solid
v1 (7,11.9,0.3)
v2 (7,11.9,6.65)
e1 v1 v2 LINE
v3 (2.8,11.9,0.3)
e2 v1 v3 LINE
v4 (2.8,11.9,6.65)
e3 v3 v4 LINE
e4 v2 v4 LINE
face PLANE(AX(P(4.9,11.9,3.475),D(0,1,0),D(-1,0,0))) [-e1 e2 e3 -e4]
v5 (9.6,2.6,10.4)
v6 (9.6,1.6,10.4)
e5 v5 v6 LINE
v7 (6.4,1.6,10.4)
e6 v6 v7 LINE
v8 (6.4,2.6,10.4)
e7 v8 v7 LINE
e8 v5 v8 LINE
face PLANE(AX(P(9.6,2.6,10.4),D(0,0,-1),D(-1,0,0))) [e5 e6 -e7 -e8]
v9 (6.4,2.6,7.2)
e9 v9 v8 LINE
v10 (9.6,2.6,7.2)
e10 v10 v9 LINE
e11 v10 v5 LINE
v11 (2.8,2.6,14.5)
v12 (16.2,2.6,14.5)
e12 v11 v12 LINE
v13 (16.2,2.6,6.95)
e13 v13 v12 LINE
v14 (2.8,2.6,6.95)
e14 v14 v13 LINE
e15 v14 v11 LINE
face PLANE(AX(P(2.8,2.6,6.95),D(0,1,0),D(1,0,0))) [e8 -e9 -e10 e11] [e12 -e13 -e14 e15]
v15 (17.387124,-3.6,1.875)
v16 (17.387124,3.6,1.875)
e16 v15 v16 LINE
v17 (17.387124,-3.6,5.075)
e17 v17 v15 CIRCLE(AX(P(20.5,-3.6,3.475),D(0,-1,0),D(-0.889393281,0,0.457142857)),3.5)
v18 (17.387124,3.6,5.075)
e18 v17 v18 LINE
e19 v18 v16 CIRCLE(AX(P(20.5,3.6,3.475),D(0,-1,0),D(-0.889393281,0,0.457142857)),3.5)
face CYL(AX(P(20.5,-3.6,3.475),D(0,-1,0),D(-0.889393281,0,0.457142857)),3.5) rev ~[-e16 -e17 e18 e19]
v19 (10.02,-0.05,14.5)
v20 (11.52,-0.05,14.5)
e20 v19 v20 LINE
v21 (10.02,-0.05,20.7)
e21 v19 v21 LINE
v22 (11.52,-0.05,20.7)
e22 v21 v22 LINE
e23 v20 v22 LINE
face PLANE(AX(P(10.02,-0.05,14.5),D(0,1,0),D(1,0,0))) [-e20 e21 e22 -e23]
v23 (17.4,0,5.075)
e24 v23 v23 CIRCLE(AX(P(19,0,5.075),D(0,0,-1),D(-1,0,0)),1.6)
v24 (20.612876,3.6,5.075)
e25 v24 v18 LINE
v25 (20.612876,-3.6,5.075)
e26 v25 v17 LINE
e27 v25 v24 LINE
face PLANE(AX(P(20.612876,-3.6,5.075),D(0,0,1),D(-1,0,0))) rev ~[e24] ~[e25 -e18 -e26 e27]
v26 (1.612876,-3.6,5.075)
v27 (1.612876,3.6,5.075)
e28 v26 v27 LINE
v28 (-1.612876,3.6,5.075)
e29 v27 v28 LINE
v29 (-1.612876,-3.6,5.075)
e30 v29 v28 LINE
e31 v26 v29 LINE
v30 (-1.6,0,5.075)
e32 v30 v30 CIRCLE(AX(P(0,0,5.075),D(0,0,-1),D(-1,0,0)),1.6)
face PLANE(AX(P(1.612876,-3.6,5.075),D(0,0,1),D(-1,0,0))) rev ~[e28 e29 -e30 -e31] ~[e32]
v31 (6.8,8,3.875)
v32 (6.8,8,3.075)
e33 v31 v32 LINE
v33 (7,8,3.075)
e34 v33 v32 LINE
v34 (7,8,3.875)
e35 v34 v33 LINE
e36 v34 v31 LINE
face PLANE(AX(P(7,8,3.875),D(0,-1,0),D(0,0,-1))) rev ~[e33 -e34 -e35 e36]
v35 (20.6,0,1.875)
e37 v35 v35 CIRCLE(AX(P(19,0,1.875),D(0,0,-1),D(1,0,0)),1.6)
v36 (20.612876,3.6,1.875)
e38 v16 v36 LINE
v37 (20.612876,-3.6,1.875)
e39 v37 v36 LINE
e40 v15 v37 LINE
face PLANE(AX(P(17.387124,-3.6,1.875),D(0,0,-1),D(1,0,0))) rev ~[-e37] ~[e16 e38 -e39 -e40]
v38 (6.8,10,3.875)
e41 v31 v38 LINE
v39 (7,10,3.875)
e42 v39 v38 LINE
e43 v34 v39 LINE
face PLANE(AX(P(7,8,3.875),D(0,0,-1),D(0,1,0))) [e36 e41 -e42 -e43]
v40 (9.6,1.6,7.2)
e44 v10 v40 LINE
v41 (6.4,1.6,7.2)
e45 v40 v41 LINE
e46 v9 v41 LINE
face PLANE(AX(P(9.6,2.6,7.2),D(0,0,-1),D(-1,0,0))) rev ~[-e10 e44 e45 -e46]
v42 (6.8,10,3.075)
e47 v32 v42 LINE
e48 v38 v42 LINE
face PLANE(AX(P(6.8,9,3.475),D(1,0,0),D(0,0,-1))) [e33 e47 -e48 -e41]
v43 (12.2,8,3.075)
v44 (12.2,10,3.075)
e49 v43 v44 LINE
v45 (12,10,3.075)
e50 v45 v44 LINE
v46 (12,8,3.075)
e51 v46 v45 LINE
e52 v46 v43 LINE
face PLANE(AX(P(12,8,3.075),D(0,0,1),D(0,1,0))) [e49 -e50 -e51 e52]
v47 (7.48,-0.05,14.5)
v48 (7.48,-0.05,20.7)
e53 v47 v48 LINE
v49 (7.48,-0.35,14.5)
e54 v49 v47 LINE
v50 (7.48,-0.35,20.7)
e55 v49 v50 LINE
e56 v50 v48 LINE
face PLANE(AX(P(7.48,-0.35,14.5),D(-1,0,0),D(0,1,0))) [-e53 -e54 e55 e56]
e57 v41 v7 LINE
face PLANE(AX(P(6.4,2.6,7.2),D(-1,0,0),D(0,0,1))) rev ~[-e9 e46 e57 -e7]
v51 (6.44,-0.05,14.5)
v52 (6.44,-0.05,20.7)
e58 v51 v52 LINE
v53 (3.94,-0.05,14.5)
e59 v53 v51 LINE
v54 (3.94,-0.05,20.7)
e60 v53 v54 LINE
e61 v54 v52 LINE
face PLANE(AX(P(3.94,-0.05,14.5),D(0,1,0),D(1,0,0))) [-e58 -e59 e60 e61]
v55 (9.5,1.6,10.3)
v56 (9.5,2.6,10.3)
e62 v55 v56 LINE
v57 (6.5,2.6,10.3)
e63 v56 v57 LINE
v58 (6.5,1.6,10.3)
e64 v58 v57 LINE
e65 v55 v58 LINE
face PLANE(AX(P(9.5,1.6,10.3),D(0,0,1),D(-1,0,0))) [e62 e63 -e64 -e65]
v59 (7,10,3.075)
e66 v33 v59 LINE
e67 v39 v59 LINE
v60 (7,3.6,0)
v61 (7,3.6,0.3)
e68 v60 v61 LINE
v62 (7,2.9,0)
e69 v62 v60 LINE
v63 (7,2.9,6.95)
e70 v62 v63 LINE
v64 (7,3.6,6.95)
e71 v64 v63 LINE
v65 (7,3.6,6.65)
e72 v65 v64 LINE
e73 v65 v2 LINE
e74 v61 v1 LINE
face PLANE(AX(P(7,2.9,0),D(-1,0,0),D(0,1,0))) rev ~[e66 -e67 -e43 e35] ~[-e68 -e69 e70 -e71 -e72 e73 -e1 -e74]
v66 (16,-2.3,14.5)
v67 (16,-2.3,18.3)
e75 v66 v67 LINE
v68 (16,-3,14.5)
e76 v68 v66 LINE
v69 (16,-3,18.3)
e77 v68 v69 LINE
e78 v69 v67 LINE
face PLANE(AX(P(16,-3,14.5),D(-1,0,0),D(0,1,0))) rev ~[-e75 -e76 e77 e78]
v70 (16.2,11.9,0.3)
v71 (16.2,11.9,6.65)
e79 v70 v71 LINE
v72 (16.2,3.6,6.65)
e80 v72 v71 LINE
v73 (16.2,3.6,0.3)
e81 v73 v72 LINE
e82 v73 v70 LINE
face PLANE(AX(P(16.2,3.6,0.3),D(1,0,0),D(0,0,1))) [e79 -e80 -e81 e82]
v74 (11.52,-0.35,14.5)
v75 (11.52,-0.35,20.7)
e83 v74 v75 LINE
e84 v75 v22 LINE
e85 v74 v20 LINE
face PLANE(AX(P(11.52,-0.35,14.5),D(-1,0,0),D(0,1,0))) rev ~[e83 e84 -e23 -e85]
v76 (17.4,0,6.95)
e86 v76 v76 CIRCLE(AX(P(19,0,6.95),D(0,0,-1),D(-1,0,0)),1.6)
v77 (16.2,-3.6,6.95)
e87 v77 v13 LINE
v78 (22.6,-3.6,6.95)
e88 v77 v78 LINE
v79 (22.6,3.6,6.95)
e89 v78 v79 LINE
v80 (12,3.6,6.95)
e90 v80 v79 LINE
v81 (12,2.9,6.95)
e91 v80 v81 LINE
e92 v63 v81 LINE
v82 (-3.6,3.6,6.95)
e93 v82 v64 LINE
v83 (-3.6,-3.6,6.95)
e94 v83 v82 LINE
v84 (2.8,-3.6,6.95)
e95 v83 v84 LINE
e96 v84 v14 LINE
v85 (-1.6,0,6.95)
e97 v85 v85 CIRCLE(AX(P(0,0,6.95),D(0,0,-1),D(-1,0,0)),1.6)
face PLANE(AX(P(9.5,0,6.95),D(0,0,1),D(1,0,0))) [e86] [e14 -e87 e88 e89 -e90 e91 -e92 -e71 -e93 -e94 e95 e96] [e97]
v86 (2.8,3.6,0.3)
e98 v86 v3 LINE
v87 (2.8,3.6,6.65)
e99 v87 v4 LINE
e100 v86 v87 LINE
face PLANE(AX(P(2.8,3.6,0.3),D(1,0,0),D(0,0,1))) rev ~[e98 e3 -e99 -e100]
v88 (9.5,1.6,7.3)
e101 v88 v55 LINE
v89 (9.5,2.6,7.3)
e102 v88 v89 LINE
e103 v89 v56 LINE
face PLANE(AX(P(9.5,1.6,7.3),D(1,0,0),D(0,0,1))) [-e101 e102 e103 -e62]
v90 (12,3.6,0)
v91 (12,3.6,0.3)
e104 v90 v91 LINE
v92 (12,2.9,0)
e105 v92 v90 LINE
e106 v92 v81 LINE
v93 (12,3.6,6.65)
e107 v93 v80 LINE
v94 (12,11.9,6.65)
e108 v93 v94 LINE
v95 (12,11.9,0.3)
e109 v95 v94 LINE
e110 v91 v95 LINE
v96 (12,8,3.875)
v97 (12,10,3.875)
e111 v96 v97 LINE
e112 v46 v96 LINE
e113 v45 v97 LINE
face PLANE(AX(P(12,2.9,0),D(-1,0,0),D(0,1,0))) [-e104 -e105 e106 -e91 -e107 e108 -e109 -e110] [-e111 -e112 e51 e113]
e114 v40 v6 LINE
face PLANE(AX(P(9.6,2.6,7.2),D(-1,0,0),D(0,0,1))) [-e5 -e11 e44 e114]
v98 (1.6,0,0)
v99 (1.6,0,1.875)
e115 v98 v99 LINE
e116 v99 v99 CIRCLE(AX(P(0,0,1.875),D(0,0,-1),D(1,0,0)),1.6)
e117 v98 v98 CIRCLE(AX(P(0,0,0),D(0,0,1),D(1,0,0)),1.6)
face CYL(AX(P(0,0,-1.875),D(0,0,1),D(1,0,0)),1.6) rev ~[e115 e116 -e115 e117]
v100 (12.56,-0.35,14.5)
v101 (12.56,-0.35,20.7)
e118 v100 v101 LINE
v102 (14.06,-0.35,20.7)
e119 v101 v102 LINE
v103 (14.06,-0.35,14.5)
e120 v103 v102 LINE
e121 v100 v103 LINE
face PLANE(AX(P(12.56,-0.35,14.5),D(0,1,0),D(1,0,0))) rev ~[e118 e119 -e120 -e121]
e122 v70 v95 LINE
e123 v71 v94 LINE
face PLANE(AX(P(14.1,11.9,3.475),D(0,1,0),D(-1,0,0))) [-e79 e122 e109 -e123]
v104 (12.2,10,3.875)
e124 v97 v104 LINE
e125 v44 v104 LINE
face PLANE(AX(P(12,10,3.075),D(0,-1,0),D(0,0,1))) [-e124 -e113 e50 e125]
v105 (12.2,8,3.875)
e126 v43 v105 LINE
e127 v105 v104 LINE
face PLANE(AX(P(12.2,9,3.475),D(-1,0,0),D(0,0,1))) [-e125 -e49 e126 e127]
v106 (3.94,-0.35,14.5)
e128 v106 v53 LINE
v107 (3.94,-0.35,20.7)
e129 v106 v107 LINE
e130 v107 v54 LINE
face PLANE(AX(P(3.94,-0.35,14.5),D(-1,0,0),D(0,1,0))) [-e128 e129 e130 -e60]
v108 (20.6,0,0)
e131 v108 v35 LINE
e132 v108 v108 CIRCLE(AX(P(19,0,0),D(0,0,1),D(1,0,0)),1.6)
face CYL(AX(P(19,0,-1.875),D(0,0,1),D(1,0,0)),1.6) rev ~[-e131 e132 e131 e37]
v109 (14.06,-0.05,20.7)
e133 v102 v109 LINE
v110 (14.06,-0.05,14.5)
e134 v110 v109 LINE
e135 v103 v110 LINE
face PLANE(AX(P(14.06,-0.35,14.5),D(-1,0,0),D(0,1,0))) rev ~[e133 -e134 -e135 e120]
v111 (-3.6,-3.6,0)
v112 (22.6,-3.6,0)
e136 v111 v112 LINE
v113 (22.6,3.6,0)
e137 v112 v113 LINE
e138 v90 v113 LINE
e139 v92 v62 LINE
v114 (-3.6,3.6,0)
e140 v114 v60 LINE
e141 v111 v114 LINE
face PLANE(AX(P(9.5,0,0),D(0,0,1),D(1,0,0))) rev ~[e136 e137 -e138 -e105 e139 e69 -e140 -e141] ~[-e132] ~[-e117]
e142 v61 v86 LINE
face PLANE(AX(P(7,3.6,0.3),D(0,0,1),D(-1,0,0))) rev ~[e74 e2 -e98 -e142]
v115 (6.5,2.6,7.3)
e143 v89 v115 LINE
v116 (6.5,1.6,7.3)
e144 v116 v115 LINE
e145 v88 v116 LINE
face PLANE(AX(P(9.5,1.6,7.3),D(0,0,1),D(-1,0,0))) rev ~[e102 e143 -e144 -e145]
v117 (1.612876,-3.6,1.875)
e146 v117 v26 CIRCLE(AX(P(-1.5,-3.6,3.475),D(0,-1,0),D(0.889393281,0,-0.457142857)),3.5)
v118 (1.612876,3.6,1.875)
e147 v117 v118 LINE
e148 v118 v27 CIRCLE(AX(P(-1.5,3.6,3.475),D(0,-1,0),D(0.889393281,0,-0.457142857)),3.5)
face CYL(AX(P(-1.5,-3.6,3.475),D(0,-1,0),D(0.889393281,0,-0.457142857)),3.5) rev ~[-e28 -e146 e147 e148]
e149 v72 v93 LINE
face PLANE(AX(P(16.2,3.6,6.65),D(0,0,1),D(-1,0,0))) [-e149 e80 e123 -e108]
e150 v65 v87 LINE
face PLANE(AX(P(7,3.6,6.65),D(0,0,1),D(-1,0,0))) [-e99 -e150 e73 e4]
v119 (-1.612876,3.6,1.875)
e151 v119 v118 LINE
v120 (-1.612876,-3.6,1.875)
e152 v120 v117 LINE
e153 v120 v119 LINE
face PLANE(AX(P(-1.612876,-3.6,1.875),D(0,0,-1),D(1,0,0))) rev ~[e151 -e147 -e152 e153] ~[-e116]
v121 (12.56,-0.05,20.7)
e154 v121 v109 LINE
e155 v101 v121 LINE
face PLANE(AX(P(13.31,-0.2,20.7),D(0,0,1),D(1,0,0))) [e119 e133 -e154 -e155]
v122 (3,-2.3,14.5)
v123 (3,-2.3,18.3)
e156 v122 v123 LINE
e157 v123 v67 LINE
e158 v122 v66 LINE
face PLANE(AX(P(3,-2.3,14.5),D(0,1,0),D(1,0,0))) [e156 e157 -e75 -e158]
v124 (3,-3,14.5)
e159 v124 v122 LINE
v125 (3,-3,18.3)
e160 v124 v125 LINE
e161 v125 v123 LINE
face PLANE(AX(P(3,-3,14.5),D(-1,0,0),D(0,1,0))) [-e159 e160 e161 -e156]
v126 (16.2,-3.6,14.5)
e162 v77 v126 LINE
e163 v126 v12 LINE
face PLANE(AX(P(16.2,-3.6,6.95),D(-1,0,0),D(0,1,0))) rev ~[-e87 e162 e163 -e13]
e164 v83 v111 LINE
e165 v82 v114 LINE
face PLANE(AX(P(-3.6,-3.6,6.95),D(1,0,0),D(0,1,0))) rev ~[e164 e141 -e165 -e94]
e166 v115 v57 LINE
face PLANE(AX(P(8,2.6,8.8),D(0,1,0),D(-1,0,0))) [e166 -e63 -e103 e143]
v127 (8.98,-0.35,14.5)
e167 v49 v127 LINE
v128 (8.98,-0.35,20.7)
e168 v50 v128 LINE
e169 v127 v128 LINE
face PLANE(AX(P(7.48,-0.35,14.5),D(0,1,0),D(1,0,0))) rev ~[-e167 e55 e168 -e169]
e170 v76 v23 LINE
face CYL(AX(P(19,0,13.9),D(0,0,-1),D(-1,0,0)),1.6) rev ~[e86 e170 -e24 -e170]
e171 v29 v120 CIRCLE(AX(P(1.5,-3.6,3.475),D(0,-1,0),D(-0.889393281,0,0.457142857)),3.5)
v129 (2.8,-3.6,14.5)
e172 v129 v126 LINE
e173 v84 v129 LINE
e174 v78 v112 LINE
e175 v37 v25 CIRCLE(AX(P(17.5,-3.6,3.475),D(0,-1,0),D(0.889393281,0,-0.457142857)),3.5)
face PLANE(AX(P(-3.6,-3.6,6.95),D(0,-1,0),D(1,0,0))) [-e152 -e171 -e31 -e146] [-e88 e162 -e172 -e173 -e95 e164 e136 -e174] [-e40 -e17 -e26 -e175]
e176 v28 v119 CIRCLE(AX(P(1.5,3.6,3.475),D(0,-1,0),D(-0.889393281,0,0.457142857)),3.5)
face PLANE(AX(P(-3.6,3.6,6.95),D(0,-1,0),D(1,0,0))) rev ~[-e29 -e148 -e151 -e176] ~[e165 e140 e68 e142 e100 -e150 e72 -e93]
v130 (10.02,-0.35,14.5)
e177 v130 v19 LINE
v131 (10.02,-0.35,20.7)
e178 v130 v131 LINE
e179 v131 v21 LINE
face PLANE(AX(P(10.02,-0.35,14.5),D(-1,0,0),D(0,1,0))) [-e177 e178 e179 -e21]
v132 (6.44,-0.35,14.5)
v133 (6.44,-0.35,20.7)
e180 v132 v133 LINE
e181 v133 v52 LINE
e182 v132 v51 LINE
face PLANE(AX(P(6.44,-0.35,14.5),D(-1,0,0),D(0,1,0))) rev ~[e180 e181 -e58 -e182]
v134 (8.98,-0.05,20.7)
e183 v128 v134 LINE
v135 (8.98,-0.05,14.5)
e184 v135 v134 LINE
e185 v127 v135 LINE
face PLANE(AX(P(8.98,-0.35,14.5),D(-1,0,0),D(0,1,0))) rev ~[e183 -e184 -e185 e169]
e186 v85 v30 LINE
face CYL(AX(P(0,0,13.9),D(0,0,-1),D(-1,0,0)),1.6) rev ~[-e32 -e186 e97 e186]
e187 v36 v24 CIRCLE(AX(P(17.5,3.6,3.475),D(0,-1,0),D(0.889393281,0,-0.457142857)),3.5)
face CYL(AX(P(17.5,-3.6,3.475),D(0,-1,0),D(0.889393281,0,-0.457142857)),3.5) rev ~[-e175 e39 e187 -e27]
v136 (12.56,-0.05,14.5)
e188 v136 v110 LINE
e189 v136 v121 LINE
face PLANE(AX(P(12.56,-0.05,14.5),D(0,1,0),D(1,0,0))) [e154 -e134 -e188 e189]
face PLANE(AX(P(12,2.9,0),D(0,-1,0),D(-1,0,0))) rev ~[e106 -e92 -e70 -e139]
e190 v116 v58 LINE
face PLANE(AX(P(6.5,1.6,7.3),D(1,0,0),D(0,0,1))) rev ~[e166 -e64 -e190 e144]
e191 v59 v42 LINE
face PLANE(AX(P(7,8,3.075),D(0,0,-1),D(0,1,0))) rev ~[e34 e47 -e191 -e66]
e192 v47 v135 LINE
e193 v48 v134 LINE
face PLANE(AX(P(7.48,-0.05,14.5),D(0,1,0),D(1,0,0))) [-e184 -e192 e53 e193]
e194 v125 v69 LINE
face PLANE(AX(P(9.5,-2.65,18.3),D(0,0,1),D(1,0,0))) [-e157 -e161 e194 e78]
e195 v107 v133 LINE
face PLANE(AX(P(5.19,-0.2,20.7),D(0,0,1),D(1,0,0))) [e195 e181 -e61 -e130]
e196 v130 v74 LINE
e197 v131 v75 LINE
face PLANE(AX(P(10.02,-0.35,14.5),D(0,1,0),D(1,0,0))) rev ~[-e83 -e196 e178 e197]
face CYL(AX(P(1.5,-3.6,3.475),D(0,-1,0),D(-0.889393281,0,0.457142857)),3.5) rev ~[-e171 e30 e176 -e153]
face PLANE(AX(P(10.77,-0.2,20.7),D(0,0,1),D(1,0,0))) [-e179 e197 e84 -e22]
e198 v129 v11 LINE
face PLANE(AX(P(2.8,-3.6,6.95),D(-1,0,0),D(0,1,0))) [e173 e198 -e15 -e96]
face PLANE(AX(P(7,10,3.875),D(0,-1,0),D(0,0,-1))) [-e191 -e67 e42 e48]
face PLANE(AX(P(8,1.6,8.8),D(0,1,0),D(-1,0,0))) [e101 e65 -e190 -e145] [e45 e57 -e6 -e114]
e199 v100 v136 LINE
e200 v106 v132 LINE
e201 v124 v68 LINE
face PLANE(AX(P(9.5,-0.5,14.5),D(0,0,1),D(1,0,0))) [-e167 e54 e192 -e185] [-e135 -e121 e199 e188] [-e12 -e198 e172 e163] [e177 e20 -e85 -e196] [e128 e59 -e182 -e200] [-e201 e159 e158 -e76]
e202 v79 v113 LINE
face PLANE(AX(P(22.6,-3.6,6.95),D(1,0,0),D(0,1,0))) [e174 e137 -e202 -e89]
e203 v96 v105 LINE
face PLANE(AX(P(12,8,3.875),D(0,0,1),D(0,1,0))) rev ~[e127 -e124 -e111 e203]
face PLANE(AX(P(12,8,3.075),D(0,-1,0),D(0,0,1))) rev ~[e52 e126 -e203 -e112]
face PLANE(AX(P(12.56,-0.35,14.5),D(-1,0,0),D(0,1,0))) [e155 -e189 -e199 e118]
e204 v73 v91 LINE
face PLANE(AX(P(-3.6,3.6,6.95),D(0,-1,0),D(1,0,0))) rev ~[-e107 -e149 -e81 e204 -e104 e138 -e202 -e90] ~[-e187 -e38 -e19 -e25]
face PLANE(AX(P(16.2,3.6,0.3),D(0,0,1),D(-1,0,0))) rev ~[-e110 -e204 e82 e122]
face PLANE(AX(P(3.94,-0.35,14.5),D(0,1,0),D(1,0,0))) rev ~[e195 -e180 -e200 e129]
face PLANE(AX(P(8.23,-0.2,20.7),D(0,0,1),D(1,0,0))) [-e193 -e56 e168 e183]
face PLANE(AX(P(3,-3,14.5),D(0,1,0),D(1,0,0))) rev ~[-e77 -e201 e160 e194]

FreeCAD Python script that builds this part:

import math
import FreeCAD as App
import Part
import Sketcher

V = App.Vector
Q = App.Units.Quantity

doc = App.newDocument("Part")
body = doc.addObject("PartDesign::Body", "Body")

sketch1 = doc.addObject("Sketcher::SketchObject", "Sketch")
body.addObject(sketch1)
sketch1.AttachmentSupport = (doc.XY_Plane, [""])
sketch1.MapMode = "FlatFace"
sketch1.AttachmentOffset = App.Placement(V(0, 0, 6.95), App.Rotation())
sketch1.addGeometry([
    Part.LineSegment(V(-4, 4, 0), V(-4, -4, 0)),
    Part.LineSegment(V(-4, -4, 0), V(23, -4, 0)),
    Part.LineSegment(V(23, -4, 0), V(23, 4, 0)),
    Part.LineSegment(V(23, 4, 0), V(-4, 4, 0)),
], False)
sketch1.addConstraint([
    Sketcher.Constraint("Coincident", 0, 2, 1, 1),
    Sketcher.Constraint("Coincident", 1, 2, 2, 1),
    Sketcher.Constraint("Coincident", 2, 2, 3, 1),
    Sketcher.Constraint("Coincident", 3, 2, 0, 1),
    Sketcher.Constraint("Vertical", 0),
    Sketcher.Constraint("Horizontal", 1),
    Sketcher.Constraint("Vertical", 2),
    Sketcher.Constraint("Horizontal", 3),
    Sketcher.Constraint("DistanceX", 1, 1, 1, 2, Q("26.2 mm")),
    Sketcher.Constraint("DistanceY", 0, 2, 0, 1, Q("7.2 mm")),
    Sketcher.Constraint("DistanceX", 0, 2, -1, 1, Q("3.6 mm")),
    Sketcher.Constraint("DistanceY", 0, 2, -1, 1, Q("3.6 mm")),
])
pad1 = doc.addObject("PartDesign::Pad", "Pad")
body.addObject(pad1)
pad1.Profile = sketch1
pad1.Length = 6.95
pad1.Reversed = True

sketch2 = doc.addObject("Sketcher::SketchObject", "Sketch001")
body.addObject(sketch2)
sketch2.AttachmentSupport = (doc.XY_Plane, [""])
sketch2.MapMode = "FlatFace"
sketch2.addGeometry([
    Part.LineSegment(V(12, 3.6, 0), V(12, 2.9, 0)),
    Part.LineSegment(V(12, 2.9, 0), V(7, 2.9, 0)),
    Part.LineSegment(V(7, 2.9, 0), V(7, 3.6, 0)),
    Part.LineSegment(V(7, 3.6, 0), V(12, 3.6, 0)),
], False)
sketch2.addConstraint([
    Sketcher.Constraint("Coincident", 0, 2, 1, 1),
    Sketcher.Constraint("Coincident", 1, 2, 2, 1),
    Sketcher.Constraint("Coincident", 2, 2, 3, 1),
    Sketcher.Constraint("Coincident", 3, 2, 0, 1),
    Sketcher.Constraint("Vertical", 0),
    Sketcher.Constraint("Horizontal", 1),
    Sketcher.Constraint("Vertical", 2),
    Sketcher.Constraint("Horizontal", 3),
    Sketcher.Constraint("DistanceX", 1, 2, 1, 1, Q("5 mm")),
    Sketcher.Constraint("DistanceY", 0, 2, 0, 1, Q("0.7 mm")),
    Sketcher.Constraint("DistanceX", -1, 1, 0, 2, Q("12 mm")),
    Sketcher.Constraint("DistanceY", -1, 1, 0, 2, Q("2.9 mm")),
])
pocket1 = doc.addObject("PartDesign::Pocket", "Pocket")
body.addObject(pocket1)
pocket1.Profile = sketch2
pocket1.Type = "ThroughAll"
pocket1.Reversed = True

sketch3 = doc.addObject("Sketcher::SketchObject", "Sketch002")
body.addObject(sketch3)
sketch3.AttachmentSupport = (doc.XZ_Plane, [""])
sketch3.MapMode = "FlatFace"
sketch3.AttachmentOffset = App.Placement(V(0, 0, 3.6), App.Rotation())
sketch3.addGeometry([
    Part.LineSegment(V(1.6, 5.1, 0), V(-1.6, 5.1, 0)),
    Part.ArcOfCircle(Part.Circle(V(1.5, 3.5, 0), V(0, 0, 1), 3.5), math.radians(153), math.radians(207)),
    Part.LineSegment(V(-1.6, 1.9, 0), V(1.6, 1.9, 0)),
    Part.ArcOfCircle(Part.Circle(V(-1.5, 3.5, 0), V(0, 0, 1), 3.5), math.radians(-27), math.radians(27)),
], False)
sketch3.addConstraint([
    Sketcher.Constraint("Coincident", 0, 2, 1, 1),
    Sketcher.Constraint("Coincident", 1, 2, 2, 1),
    Sketcher.Constraint("Coincident", 2, 2, 3, 1),
    Sketcher.Constraint("Coincident", 3, 2, 0, 1),
    Sketcher.Constraint("Horizontal", 0),
    Sketcher.Constraint("Horizontal", 2),
    Sketcher.Constraint("Equal", 1, 3),
    Sketcher.Constraint("Symmetric", 1, 3, 3, 3, -2),
    Sketcher.Constraint("Vertical", 0, 2, 1, 2),
    Sketcher.Constraint("Radius", 1, Q("3.5 mm")),
    Sketcher.Constraint("DistanceX", 3, 3, 1, 3, Q("3 mm")),
    Sketcher.Constraint("DistanceY", 3, 3, 0, 2, Q("1.6 mm")),
    Sketcher.Constraint("DistanceY", -1, 1, 1, 3, Q("3.475 mm")),
])
pocket2 = doc.addObject("PartDesign::Pocket", "Pocket001")
body.addObject(pocket2)
pocket2.Profile = sketch3
pocket2.Type = "ThroughAll"

sketch4 = doc.addObject("Sketcher::SketchObject", "Sketch003")
body.addObject(sketch4)
sketch4.AttachmentSupport = (doc.XZ_Plane, [""])
sketch4.MapMode = "FlatFace"
sketch4.AttachmentOffset = App.Placement(V(0, 0, 3.6), App.Rotation())
sketch4.addGeometry([
    Part.LineSegment(V(17.4, 1.9, 0), V(20.6, 1.9, 0)),
    Part.ArcOfCircle(Part.Circle(V(17.5, 3.5, 0), V(0, 0, 1), 3.5), math.radians(-27), math.radians(27)),
    Part.LineSegment(V(20.6, 5.1, 0), V(17.4, 5.1, 0)),
    Part.ArcOfCircle(Part.Circle(V(20.5, 3.5, 0), V(0, 0, 1), 3.5), math.radians(153), math.radians(207)),
], False)
sketch4.addConstraint([
    Sketcher.Constraint("Coincident", 0, 2, 1, 1),
    Sketcher.Constraint("Coincident", 1, 2, 2, 1),
    Sketcher.Constraint("Coincident", 2, 2, 3, 1),
    Sketcher.Constraint("Coincident", 3, 2, 0, 1),
    Sketcher.Constraint("Horizontal", 0),
    Sketcher.Constraint("Horizontal", 2),
    Sketcher.Constraint("Equal", 1, 3),
    Sketcher.Constraint("Horizontal", 1, 3, 3, 3),
    Sketcher.Constraint("Vertical", 0, 2, 1, 2),
    Sketcher.Constraint("Radius", 1, Q("3.5 mm")),
    Sketcher.Constraint("DistanceX", 1, 3, 3, 3, Q("3 mm")),
    Sketcher.Constraint("DistanceX", -1, 1, 1, 3, Q("17.5 mm")),
    Sketcher.Constraint("DistanceY", 0, 2, 3, 3, Q("1.6 mm")),
    Sketcher.Constraint("DistanceY", -1, 1, 1, 3, Q("3.475 mm")),
])
pocket3 = doc.addObject("PartDesign::Pocket", "Pocket002")
body.addObject(pocket3)
pocket3.Profile = sketch4
pocket3.Type = "ThroughAll"

sketch5 = doc.addObject("Sketcher::SketchObject", "Sketch004")
body.addObject(sketch5)
sketch5.AttachmentSupport = (doc.XY_Plane, [""])
sketch5.MapMode = "FlatFace"
sketch5.AttachmentOffset = App.Placement(V(0, 0, 6.95), App.Rotation())
sketch5.addGeometry([
    Part.LineSegment(V(3, 3, 0), V(3, -4, 0)),
    Part.LineSegment(V(3, -4, 0), V(16, -4, 0)),
    Part.LineSegment(V(16, -4, 0), V(16, 3, 0)),
    Part.LineSegment(V(16, 3, 0), V(3, 3, 0)),
], False)
sketch5.addConstraint([
    Sketcher.Constraint("Coincident", 0, 2, 1, 1),
    Sketcher.Constraint("Coincident", 1, 2, 2, 1),
    Sketcher.Constraint("Coincident", 2, 2, 3, 1),
    Sketcher.Constraint("Coincident", 3, 2, 0, 1),
    Sketcher.Constraint("Vertical", 0),
    Sketcher.Constraint("Horizontal", 1),
    Sketcher.Constraint("Vertical", 2),
    Sketcher.Constraint("Horizontal", 3),
    Sketcher.Constraint("DistanceX", 1, 1, 1, 2, Q("13.4 mm")),
    Sketcher.Constraint("DistanceY", 0, 2, 0, 1, Q("6.2 mm")),
    Sketcher.Constraint("DistanceX", -1, 1, 0, 2, Q("2.8 mm")),
    Sketcher.Constraint("DistanceY", 0, 2, -1, 1, Q("3.6 mm")),
])
pad2 = doc.addObject("PartDesign::Pad", "Pad001")
body.addObject(pad2)
pad2.Profile = sketch5
pad2.Length = 7.55

sketch6 = doc.addObject("Sketcher::SketchObject", "Sketch005")
body.addObject(sketch6)
sketch6.AttachmentSupport = (doc.XY_Plane, [""])
sketch6.MapMode = "FlatFace"
sketch6.AttachmentOffset = App.Placement(V(0, 0, 14.5), App.Rotation())
sketch6.addGeometry([
    Part.LineSegment(V(3, -2.3, 0), V(3, -3, 0)),
    Part.LineSegment(V(3, -3, 0), V(16, -3, 0)),
    Part.LineSegment(V(16, -3, 0), V(16, -2.3, 0)),
    Part.LineSegment(V(16, -2.3, 0), V(3, -2.3, 0)),
], False)
sketch6.addConstraint([
    Sketcher.Constraint("Coincident", 0, 2, 1, 1),
    Sketcher.Constraint("Coincident", 1, 2, 2, 1),
    Sketcher.Constraint("Coincident", 2, 2, 3, 1),
    Sketcher.Constraint("Coincident", 3, 2, 0, 1),
    Sketcher.Constraint("Vertical", 0),
    Sketcher.Constraint("Horizontal", 1),
    Sketcher.Constraint("Vertical", 2),
    Sketcher.Constraint("Horizontal", 3),
    Sketcher.Constraint("DistanceX", 1, 1, 1, 2, Q("13 mm")),
    Sketcher.Constraint("DistanceY", 0, 2, 0, 1, Q("0.7 mm")),
    Sketcher.Constraint("DistanceX", -1, 1, 0, 2, Q("3 mm")),
    Sketcher.Constraint("DistanceY", 0, 2, -1, 1, Q("3 mm")),
])
pad3 = doc.addObject("PartDesign::Pad", "Pad002")
body.addObject(pad3)
pad3.Profile = sketch6
pad3.Length = 3.8

sketch7 = doc.addObject("Sketcher::SketchObject", "Sketch006")
body.addObject(sketch7)
sketch7.AttachmentSupport = (doc.XY_Plane, [""])
sketch7.MapMode = "FlatFace"
sketch7.AttachmentOffset = App.Placement(V(0, 0, 14.5), App.Rotation())
sketch7.addGeometry([
    Part.LineSegment(V(12.56, -0.05, 0), V(12.56, -0.35, 0)),
    Part.LineSegment(V(12.56, -0.35, 0), V(14.06, -0.35, 0)),
    Part.LineSegment(V(14.06, -0.35, 0), V(14.06, -0.05, 0)),
    Part.LineSegment(V(14.06, -0.05, 0), V(12.56, -0.05, 0)),
], False)
sketch7.addConstraint([
    Sketcher.Constraint("Coincident", 0, 2, 1, 1),
    Sketcher.Constraint("Coincident", 1, 2, 2, 1),
    Sketcher.Constraint("Coincident", 2, 2, 3, 1),
    Sketcher.Constraint("Coincident", 3, 2, 0, 1),
    Sketcher.Constraint("Vertical", 0),
    Sketcher.Constraint("Horizontal", 1),
    Sketcher.Constraint("Vertical", 2),
    Sketcher.Constraint("Horizontal", 3),
    Sketcher.Constraint("DistanceX", 1, 1, 1, 2, Q("1.5 mm")),
    Sketcher.Constraint("DistanceY", 0, 2, 0, 1, Q("0.3 mm")),
    Sketcher.Constraint("DistanceX", -1, 1, 0, 2, Q("12.56 mm")),
    Sketcher.Constraint("DistanceY", 0, 2, -1, 1, Q("0.35 mm")),
])
pad4 = doc.addObject("PartDesign::Pad", "Pad003")
body.addObject(pad4)
pad4.Profile = sketch7
pad4.Length = 6.2

sketch8 = doc.addObject("Sketcher::SketchObject", "Sketch007")
body.addObject(sketch8)
sketch8.AttachmentSupport = (doc.XY_Plane, [""])
sketch8.MapMode = "FlatFace"
sketch8.AttachmentOffset = App.Placement(V(0, 0, 14.5), App.Rotation())
sketch8.addGeometry([
    Part.LineSegment(V(10.02, -0.05, 0), V(10.02, -0.35, 0)),
    Part.LineSegment(V(10.02, -0.35, 0), V(11.52, -0.35, 0)),
    Part.LineSegment(V(11.52, -0.35, 0), V(11.52, -0.05, 0)),
    Part.LineSegment(V(11.52, -0.05, 0), V(10.02, -0.05, 0)),
], False)
sketch8.addConstraint([
    Sketcher.Constraint("Coincident", 0, 2, 1, 1),
    Sketcher.Constraint("Coincident", 1, 2, 2, 1),
    Sketcher.Constraint("Coincident", 2, 2, 3, 1),
    Sketcher.Constraint("Coincident", 3, 2, 0, 1),
    Sketcher.Constraint("Vertical", 0),
    Sketcher.Constraint("Horizontal", 1),
    Sketcher.Constraint("Vertical", 2),
    Sketcher.Constraint("Horizontal", 3),
    Sketcher.Constraint("DistanceX", 1, 1, 1, 2, Q("1.5 mm")),
    Sketcher.Constraint("DistanceY", 0, 2, 0, 1, Q("0.3 mm")),
    Sketcher.Constraint("DistanceX", -1, 1, 0, 2, Q("10.02 mm")),
    Sketcher.Constraint("DistanceY", 0, 2, -1, 1, Q("0.35 mm")),
])
pad5 = doc.addObject("PartDesign::Pad", "Pad004")
body.addObject(pad5)
pad5.Profile = sketch8
pad5.Length = 6.2

sketch9 = doc.addObject("Sketcher::SketchObject", "Sketch008")
body.addObject(sketch9)
sketch9.AttachmentSupport = (doc.XY_Plane, [""])
sketch9.MapMode = "FlatFace"
sketch9.AttachmentOffset = App.Placement(V(0, 0, 14.5), App.Rotation())
sketch9.addGeometry([
    Part.LineSegment(V(7.48, -0.05, 0), V(7.48, -0.35, 0)),
    Part.LineSegment(V(7.48, -0.35, 0), V(8.98, -0.35, 0)),
    Part.LineSegment(V(8.98, -0.35, 0), V(8.98, -0.05, 0)),
    Part.LineSegment(V(8.98, -0.05, 0), V(7.48, -0.05, 0)),
], False)
sketch9.addConstraint([
    Sketcher.Constraint("Coincident", 0, 2, 1, 1),
    Sketcher.Constraint("Coincident", 1, 2, 2, 1),
    Sketcher.Constraint("Coincident", 2, 2, 3, 1),
    Sketcher.Constraint("Coincident", 3, 2, 0, 1),
    Sketcher.Constraint("Vertical", 0),
    Sketcher.Constraint("Horizontal", 1),
    Sketcher.Constraint("Vertical", 2),
    Sketcher.Constraint("Horizontal", 3),
    Sketcher.Constraint("DistanceX", 1, 1, 1, 2, Q("1.5 mm")),
    Sketcher.Constraint("DistanceY", 0, 2, 0, 1, Q("0.3 mm")),
    Sketcher.Constraint("DistanceX", -1, 1, 0, 2, Q("7.48 mm")),
    Sketcher.Constraint("DistanceY", 0, 2, -1, 1, Q("0.35 mm")),
])
pad6 = doc.addObject("PartDesign::Pad", "Pad005")
body.addObject(pad6)
pad6.Profile = sketch9
pad6.Length = 6.2

sketch10 = doc.addObject("Sketcher::SketchObject", "Sketch009")
body.addObject(sketch10)
sketch10.AttachmentSupport = (doc.XY_Plane, [""])
sketch10.MapMode = "FlatFace"
sketch10.AttachmentOffset = App.Placement(V(0, 0, 14.5), App.Rotation())
sketch10.addGeometry([
    Part.LineSegment(V(3.94, -0.05, 0), V(3.94, -0.35, 0)),
    Part.LineSegment(V(3.94, -0.35, 0), V(6.44, -0.35, 0)),
    Part.LineSegment(V(6.44, -0.35, 0), V(6.44, -0.05, 0)),
    Part.LineSegment(V(6.44, -0.05, 0), V(3.94, -0.05, 0)),
], False)
sketch10.addConstraint([
    Sketcher.Constraint("Coincident", 0, 2, 1, 1),
    Sketcher.Constraint("Coincident", 1, 2, 2, 1),
    Sketcher.Constraint("Coincident", 2, 2, 3, 1),
    Sketcher.Constraint("Coincident", 3, 2, 0, 1),
    Sketcher.Constraint("Vertical", 0),
    Sketcher.Constraint("Horizontal", 1),
    Sketcher.Constraint("Vertical", 2),
    Sketcher.Constraint("Horizontal", 3),
    Sketcher.Constraint("DistanceX", 1, 1, 1, 2, Q("2.5 mm")),
    Sketcher.Constraint("DistanceY", 0, 2, 0, 1, Q("0.3 mm")),
    Sketcher.Constraint("DistanceX", -1, 1, 0, 2, Q("3.94 mm")),
    Sketcher.Constraint("DistanceY", 0, 2, -1, 1, Q("0.35 mm")),
])
pad7 = doc.addObject("PartDesign::Pad", "Pad006")
body.addObject(pad7)
pad7.Profile = sketch10
pad7.Length = 6.2

sketch11 = doc.addObject("Sketcher::SketchObject", "Sketch010")
body.addObject(sketch11)
sketch11.AttachmentSupport = (doc.XZ_Plane, [""])
sketch11.MapMode = "FlatFace"
sketch11.AttachmentOffset = App.Placement(V(0, 0, -2.6), App.Rotation())
sketch11.addGeometry([
    Part.LineSegment(V(9.6, 10.4, 0), V(9.6, 7.2, 0)),
    Part.LineSegment(V(9.6, 7.2, 0), V(6.4, 7.2, 0)),
    Part.LineSegment(V(6.4, 7.2, 0), V(6.4, 10.4, 0)),
    Part.LineSegment(V(6.4, 10.4, 0), V(9.6, 10.4, 0)),
], False)
sketch11.addConstraint([
    Sketcher.Constraint("Coincident", 0, 2, 1, 1),
    Sketcher.Constraint("Coincident", 1, 2, 2, 1),
    Sketcher.Constraint("Coincident", 2, 2, 3, 1),
    Sketcher.Constraint("Coincident", 3, 2, 0, 1),
    Sketcher.Constraint("Vertical", 0),
    Sketcher.Constraint("Horizontal", 1),
    Sketcher.Constraint("Vertical", 2),
    Sketcher.Constraint("Horizontal", 3),
    Sketcher.Constraint("Equal", 3, 0),
    Sketcher.Constraint("DistanceX", 1, 2, 1, 1, Q("3.2 mm")),
    Sketcher.Constraint("DistanceX", -1, 1, 0, 2, Q("9.6 mm")),
    Sketcher.Constraint("DistanceY", -1, 1, 0, 2, Q("7.2 mm")),
])
pocket4 = doc.addObject("PartDesign::Pocket", "Pocket003")
body.addObject(pocket4)
pocket4.Profile = sketch11
pocket4.Length = 1
pocket4.Reversed = True

sketch12 = doc.addObject("Sketcher::SketchObject", "Sketch011")
body.addObject(sketch12)
sketch12.AttachmentSupport = (doc.XZ_Plane, [""])
sketch12.MapMode = "FlatFace"
sketch12.AttachmentOffset = App.Placement(V(0, 0, -1.6), App.Rotation())
sketch12.addGeometry([
    Part.LineSegment(V(9.5, 10.3, 0), V(9.5, 7.3, 0)),
    Part.LineSegment(V(9.5, 7.3, 0), V(6.5, 7.3, 0)),
    Part.LineSegment(V(6.5, 7.3, 0), V(6.5, 10.3, 0)),
    Part.LineSegment(V(6.5, 10.3, 0), V(9.5, 10.3, 0)),
], False)
sketch12.addConstraint([
    Sketcher.Constraint("Coincident", 0, 2, 1, 1),
    Sketcher.Constraint("Coincident", 1, 2, 2, 1),
    Sketcher.Constraint("Coincident", 2, 2, 3, 1),
    Sketcher.Constraint("Coincident", 3, 2, 0, 1),
    Sketcher.Constraint("Vertical", 0),
    Sketcher.Constraint("Horizontal", 1),
    Sketcher.Constraint("Vertical", 2),
    Sketcher.Constraint("Horizontal", 3),
    Sketcher.Constraint("Equal", 3, 0),
    Sketcher.Constraint("DistanceX", 1, 2, 1, 1, Q("3 mm")),
    Sketcher.Constraint("DistanceX", -1, 1, 0, 2, Q("9.5 mm")),
    Sketcher.Constraint("DistanceY", -1, 1, 0, 2, Q("7.3 mm")),
])
pad8 = doc.addObject("PartDesign::Pad", "Pad007")
body.addObject(pad8)
pad8.Profile = sketch12
pad8.Length = 1
pad8.Reversed = True

sketch13 = doc.addObject("Sketcher::SketchObject", "Sketch012")
body.addObject(sketch13)
sketch13.AttachmentSupport = (doc.XZ_Plane, [""])
sketch13.MapMode = "FlatFace"
sketch13.AttachmentOffset = App.Placement(V(0, 0, -3.6), App.Rotation())
sketch13.addGeometry([
    Part.LineSegment(V(16.2, 6.7, 0), V(16.2, 0.3, 0)),
    Part.LineSegment(V(16.2, 0.3, 0), V(12, 0.3, 0)),
    Part.LineSegment(V(12, 0.3, 0), V(12, 6.7, 0)),
    Part.LineSegment(V(12, 6.7, 0), V(16.2, 6.7, 0)),
], False)
sketch13.addConstraint([
    Sketcher.Constraint("Coincident", 0, 2, 1, 1),
    Sketcher.Constraint("Coincident", 1, 2, 2, 1),
    Sketcher.Constraint("Coincident", 2, 2, 3, 1),
    Sketcher.Constraint("Coincident", 3, 2, 0, 1),
    Sketcher.Constraint("Vertical", 0),
    Sketcher.Constraint("Horizontal", 1),
    Sketcher.Constraint("Vertical", 2),
    Sketcher.Constraint("Horizontal", 3),
    Sketcher.Constraint("DistanceX", 1, 2, 1, 1, Q("4.2 mm")),
    Sketcher.Constraint("DistanceX", -1, 1, 1, 2, Q("12 mm")),
    Sketcher.Constraint("DistanceY", 0, 2, 0, 1, Q("6.35 mm")),
    Sketcher.Constraint("DistanceY", -1, 1, 0, 2, Q("0.3 mm")),
])
pad9 = doc.addObject("PartDesign::Pad", "Pad008")
body.addObject(pad9)
pad9.Profile = sketch13
pad9.Length = 8.3
pad9.Reversed = True

sketch14 = doc.addObject("Sketcher::SketchObject", "Sketch013")
body.addObject(sketch14)
sketch14.AttachmentSupport = (doc.YZ_Plane, [""])
sketch14.MapMode = "FlatFace"
sketch14.AttachmentOffset = App.Placement(V(0, 0, 12), App.Rotation())
sketch14.addGeometry([
    Part.LineSegment(V(10, 3.1, 0), V(8, 3.1, 0)),
    Part.LineSegment(V(8, 3.1, 0), V(8, 3.9, 0)),
    Part.LineSegment(V(8, 3.9, 0), V(10, 3.9, 0)),
    Part.LineSegment(V(10, 3.9, 0), V(10, 3.1, 0)),
], False)
sketch14.addConstraint([
    Sketcher.Constraint("Coincident", 0, 2, 1, 1),
    Sketcher.Constraint("Coincident", 1, 2, 2, 1),
    Sketcher.Constraint("Coincident", 2, 2, 3, 1),
    Sketcher.Constraint("Coincident", 3, 2, 0, 1),
    Sketcher.Constraint("Horizontal", 0),
    Sketcher.Constraint("Vertical", 1),
    Sketcher.Constraint("Horizontal", 2),
    Sketcher.Constraint("Vertical", 3),
    Sketcher.Constraint("DistanceX", 0, 2, 0, 1, Q("2 mm")),
    Sketcher.Constraint("DistanceY", 1, 1, 1, 2, Q("0.8 mm")),
    Sketcher.Constraint("DistanceX", -1, 1, 0, 2, Q("8 mm")),
    Sketcher.Constraint("DistanceY", -1, 1, 0, 2, Q("3.075 mm")),
])
pocket5 = doc.addObject("PartDesign::Pocket", "Pocket004")
body.addObject(pocket5)
pocket5.Profile = sketch14
pocket5.Length = 0.2
pocket5.Reversed = True

sketch15 = doc.addObject("Sketcher::SketchObject", "Sketch014")
body.addObject(sketch15)
sketch15.AttachmentSupport = (doc.XZ_Plane, [""])
sketch15.MapMode = "FlatFace"
sketch15.AttachmentOffset = App.Placement(V(0, 0, -3.6), App.Rotation())
sketch15.addGeometry([
    Part.LineSegment(V(7, 6.7, 0), V(7, 0.3, 0)),
    Part.LineSegment(V(7, 0.3, 0), V(2.8, 0.3, 0)),
    Part.LineSegment(V(2.8, 0.3, 0), V(2.8, 6.7, 0)),
    Part.LineSegment(V(2.8, 6.7, 0), V(7, 6.7, 0)),
], False)
sketch15.addConstraint([
    Sketcher.Constraint("Coincident", 0, 2, 1, 1),
    Sketcher.Constraint("Coincident", 1, 2, 2, 1),
    Sketcher.Constraint("Coincident", 2, 2, 3, 1),
    Sketcher.Constraint("Coincident", 3, 2, 0, 1),
    Sketcher.Constraint("Vertical", 0),
    Sketcher.Constraint("Horizontal", 1),
    Sketcher.Constraint("Vertical", 2),
    Sketcher.Constraint("Horizontal", 3),
    Sketcher.Constraint("DistanceX", 1, 2, 1, 1, Q("4.2 mm")),
    Sketcher.Constraint("DistanceX", -1, 1, 0, 2, Q("7 mm")),
    Sketcher.Constraint("DistanceY", 0, 2, 0, 1, Q("6.35 mm")),
    Sketcher.Constraint("DistanceY", -1, 1, 0, 2, Q("0.3 mm")),
])
pad10 = doc.addObject("PartDesign::Pad", "Pad009")
body.addObject(pad10)
pad10.Profile = sketch15
pad10.Length = 8.3
pad10.Reversed = True

sketch16 = doc.addObject("Sketcher::SketchObject", "Sketch015")
body.addObject(sketch16)
sketch16.AttachmentSupport = (doc.YZ_Plane, [""])
sketch16.MapMode = "FlatFace"
sketch16.AttachmentOffset = App.Placement(V(0, 0, 7), App.Rotation())
sketch16.addGeometry([
    Part.LineSegment(V(10, 3.9, 0), V(8, 3.9, 0)),
    Part.LineSegment(V(8, 3.9, 0), V(8, 3.1, 0)),
    Part.LineSegment(V(8, 3.1, 0), V(10, 3.1, 0)),
    Part.LineSegment(V(10, 3.1, 0), V(10, 3.9, 0)),
], False)
sketch16.addConstraint([
    Sketcher.Constraint("Coincident", 0, 2, 1, 1),
    Sketcher.Constraint("Coincident", 1, 2, 2, 1),
    Sketcher.Constraint("Coincident", 2, 2, 3, 1),
    Sketcher.Constraint("Coincident", 3, 2, 0, 1),
    Sketcher.Constraint("Horizontal", 0),
    Sketcher.Constraint("Vertical", 1),
    Sketcher.Constraint("Horizontal", 2),
    Sketcher.Constraint("Vertical", 3),
    Sketcher.Constraint("DistanceX", 0, 2, 0, 1, Q("2 mm")),
    Sketcher.Constraint("DistanceY", 1, 2, 1, 1, Q("0.8 mm")),
    Sketcher.Constraint("DistanceX", -1, 1, 0, 2, Q("8 mm")),
    Sketcher.Constraint("DistanceY", -1, 1, 0, 2, Q("3.875 mm")),
])
pocket6 = doc.addObject("PartDesign::Pocket", "Pocket005")
body.addObject(pocket6)
pocket6.Profile = sketch16
pocket6.Length = 0.2

sketch17 = doc.addObject("Sketcher::SketchObject", "Sketch016")
body.addObject(sketch17)
sketch17.AttachmentSupport = (doc.XY_Plane, [""])
sketch17.MapMode = "FlatFace"
sketch17.addGeometry([
    Part.Circle(V(0, 0, 0), V(0, 0, 1), 1.6),
    Part.Circle(V(19, 0, 0), V(0, 0, 1), 1.6),
], False)
sketch17.addConstraint([
    Sketcher.Constraint("Coincident", 0, 3, -1, 1),
    Sketcher.Constraint("Equal", 0, 1),
    Sketcher.Constraint("PointOnObject", 1, 3, -1),
    Sketcher.Constraint("Diameter", 0, Q("3.2 mm")),
    Sketcher.Constraint("DistanceX", -1, 1, 1, 3, Q("19 mm")),
])
doc.recompute()
hole = doc.addObject("PartDesign::Hole", "Hole")
body.addObject(hole)
hole.Profile = sketch17
hole.ThreadType = "None"
hole.Diameter = 3.2
hole.DepthType = "Dimension"
hole.Depth = 1.875
hole.DrillPoint = "Flat"
hole.Reversed = True

sketch18 = doc.addObject("Sketcher::SketchObject", "Sketch017")
body.addObject(sketch18)
sketch18.AttachmentSupport = (doc.XY_Plane, [""])
sketch18.MapMode = "FlatFace"
sketch18.AttachmentOffset = App.Placement(V(0, 0, 6.95), App.Rotation())
sketch18.addGeometry([
    Part.Circle(V(19, 0, 0), V(0, 0, 1), 1.6),
    Part.Circle(V(0, 0, 0), V(0, 0, 1), 1.6),
], False)
sketch18.addConstraint([
    Sketcher.Constraint("Coincident", 1, 3, -1, 1),
    Sketcher.Constraint("Equal", 0, 1),
    Sketcher.Constraint("PointOnObject", 0, 3, -1),
    Sketcher.Constraint("Diameter", 0, Q("3.2 mm")),
    Sketcher.Constraint("DistanceX", -1, 1, 0, 3, Q("19 mm")),
])
doc.recompute()
hole2 = doc.addObject("PartDesign::Hole", "Hole001")
body.addObject(hole2)
hole2.Profile = sketch18
hole2.ThreadType = "None"
hole2.Diameter = 3.2
hole2.DepthType = "Dimension"
hole2.Depth = 6.95
hole2.DrillPoint = "Flat"

doc.recompute()
